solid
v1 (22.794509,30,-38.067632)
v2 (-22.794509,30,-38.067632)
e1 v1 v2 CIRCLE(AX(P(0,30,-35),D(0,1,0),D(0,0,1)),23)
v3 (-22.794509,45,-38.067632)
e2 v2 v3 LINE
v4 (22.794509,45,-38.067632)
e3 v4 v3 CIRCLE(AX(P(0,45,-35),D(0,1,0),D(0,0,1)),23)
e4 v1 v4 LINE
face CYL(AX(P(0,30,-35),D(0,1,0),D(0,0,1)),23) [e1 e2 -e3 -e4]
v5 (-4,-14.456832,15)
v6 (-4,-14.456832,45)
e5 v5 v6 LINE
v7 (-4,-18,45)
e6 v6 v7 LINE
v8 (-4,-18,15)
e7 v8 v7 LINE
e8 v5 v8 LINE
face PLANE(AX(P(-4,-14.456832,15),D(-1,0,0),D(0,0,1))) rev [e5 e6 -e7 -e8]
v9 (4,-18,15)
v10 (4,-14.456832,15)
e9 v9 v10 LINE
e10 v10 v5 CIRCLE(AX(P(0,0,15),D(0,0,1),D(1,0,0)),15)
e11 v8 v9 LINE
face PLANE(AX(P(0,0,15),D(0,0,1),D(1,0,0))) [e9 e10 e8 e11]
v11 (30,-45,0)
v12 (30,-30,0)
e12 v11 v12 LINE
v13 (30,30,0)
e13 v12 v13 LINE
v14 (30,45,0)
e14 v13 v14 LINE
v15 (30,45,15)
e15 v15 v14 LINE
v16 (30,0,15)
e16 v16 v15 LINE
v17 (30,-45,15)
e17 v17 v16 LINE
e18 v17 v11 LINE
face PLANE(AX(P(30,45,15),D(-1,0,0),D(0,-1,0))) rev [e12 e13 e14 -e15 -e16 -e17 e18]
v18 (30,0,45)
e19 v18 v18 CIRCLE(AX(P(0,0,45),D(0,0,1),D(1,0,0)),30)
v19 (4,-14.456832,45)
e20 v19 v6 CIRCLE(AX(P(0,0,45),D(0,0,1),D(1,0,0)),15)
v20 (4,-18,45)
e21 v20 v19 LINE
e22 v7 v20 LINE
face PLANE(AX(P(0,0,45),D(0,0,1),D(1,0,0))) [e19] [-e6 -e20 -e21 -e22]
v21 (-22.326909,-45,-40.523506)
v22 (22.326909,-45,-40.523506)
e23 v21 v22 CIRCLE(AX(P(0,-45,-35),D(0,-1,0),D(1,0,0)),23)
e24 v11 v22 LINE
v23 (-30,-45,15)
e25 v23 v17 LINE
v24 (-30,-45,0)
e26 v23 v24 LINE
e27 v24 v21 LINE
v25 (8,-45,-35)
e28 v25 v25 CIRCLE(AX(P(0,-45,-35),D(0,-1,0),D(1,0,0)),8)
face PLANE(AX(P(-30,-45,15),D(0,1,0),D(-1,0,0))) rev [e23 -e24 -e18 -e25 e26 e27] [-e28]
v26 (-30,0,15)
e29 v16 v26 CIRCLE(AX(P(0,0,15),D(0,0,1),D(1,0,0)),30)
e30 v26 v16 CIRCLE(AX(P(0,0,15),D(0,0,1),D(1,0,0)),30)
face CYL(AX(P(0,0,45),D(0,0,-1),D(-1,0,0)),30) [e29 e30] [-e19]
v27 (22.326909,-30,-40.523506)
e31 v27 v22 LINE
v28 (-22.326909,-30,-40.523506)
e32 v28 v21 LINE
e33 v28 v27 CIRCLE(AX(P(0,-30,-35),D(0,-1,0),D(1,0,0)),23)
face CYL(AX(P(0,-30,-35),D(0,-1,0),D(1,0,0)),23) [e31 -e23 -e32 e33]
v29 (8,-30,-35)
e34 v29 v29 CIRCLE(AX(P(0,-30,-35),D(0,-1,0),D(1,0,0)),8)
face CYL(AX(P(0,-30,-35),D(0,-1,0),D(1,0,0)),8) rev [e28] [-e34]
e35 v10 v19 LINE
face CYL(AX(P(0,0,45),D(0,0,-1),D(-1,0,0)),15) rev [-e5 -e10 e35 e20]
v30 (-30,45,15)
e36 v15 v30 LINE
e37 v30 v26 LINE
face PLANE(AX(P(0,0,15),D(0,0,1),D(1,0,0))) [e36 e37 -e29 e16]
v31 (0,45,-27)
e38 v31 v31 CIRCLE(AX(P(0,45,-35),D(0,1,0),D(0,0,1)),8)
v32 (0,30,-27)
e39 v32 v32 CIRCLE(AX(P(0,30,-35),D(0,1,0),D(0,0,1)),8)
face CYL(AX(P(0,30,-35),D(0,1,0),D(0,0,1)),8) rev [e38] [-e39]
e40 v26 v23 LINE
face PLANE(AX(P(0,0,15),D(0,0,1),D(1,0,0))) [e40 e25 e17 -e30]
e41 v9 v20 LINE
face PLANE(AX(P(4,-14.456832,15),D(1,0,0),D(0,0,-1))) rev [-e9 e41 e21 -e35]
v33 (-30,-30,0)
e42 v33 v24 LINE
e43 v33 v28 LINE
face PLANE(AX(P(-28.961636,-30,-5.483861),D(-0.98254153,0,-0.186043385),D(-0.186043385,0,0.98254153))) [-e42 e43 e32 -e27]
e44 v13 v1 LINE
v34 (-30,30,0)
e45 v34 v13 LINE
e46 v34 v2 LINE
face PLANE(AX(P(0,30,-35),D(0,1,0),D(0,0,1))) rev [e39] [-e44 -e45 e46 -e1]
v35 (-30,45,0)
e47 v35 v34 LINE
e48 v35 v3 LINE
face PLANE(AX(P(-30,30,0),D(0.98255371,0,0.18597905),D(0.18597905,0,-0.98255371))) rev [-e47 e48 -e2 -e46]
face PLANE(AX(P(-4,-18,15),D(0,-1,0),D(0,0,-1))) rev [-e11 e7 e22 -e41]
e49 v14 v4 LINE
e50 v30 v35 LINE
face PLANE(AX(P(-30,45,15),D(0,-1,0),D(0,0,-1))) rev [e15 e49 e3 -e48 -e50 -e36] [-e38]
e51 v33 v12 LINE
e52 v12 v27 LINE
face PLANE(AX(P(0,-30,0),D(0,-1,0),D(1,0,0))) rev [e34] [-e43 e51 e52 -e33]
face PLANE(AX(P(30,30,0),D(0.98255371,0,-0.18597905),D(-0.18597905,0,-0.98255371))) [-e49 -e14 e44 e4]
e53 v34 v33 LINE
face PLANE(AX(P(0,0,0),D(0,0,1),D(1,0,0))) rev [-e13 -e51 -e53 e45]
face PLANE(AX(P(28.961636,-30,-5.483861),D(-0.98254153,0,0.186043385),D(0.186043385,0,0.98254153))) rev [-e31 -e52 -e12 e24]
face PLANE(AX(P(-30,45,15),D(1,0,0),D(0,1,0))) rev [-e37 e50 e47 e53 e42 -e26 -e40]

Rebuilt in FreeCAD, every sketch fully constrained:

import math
import FreeCAD as App
import Part
import Sketcher
Q = App.Units.Quantity


def add_polygon(sketch, points):
    """Adds a closed chain of lines whose ends are joined by coincident constraints."""
    first, n = sketch.GeometryCount, len(points)
    for a, b in zip(points, points[1:] + points[:1]):
        sketch.addGeometry(Part.LineSegment(App.Vector(*a, 0), App.Vector(*b, 0)), False)
    for i in range(n):
        sketch.addConstraint(Sketcher.Constraint("Coincident", first + i, 2, first + (i + 1) % n, 1))

doc = App.newDocument("Part")
body = doc.addObject("PartDesign::Body", "Body")

sketch1 = body.newObject("Sketcher::SketchObject", "Sketch")
sketch1.AttachmentSupport = (doc.getObject("XY_Plane"), [""])
sketch1.MapMode = "FlatFace"
add_polygon(sketch1, [(-30, 45), (-30, -45), (30, -45), (30, 45)])
sketch1.addConstraint(Sketcher.Constraint("Vertical", 0))
sketch1.addConstraint(Sketcher.Constraint("Horizontal", 1))
sketch1.addConstraint(Sketcher.Constraint("Vertical", 2))
sketch1.addConstraint(Sketcher.Constraint("Horizontal", 3))
sketch1.addConstraint(Sketcher.Constraint("Symmetric", 0, 2, 2, 2, -1, 1))
sketch1.addConstraint(Sketcher.Constraint("DistanceX", 1, 1, 1, 2, Q("60 mm")))
sketch1.addConstraint(Sketcher.Constraint("DistanceY", 0, 2, 0, 1, Q("90 mm")))
pad1 = body.newObject("PartDesign::Pad", "Pad")
pad1.Profile = sketch1
pad1.Length = 15

sketch2 = body.newObject("Sketcher::SketchObject", "Sketch001")
sketch2.AttachmentSupport = (doc.getObject("XY_Plane"), [""])
sketch2.MapMode = "FlatFace"
sketch2.AttachmentOffset = App.Placement(App.Vector(0, 0, 15), App.Rotation())
sketch2.addGeometry(Part.Circle(App.Vector(0, 0, 0), App.Vector(0, 0, 1), 30), False)
sketch2.addGeometry(Part.Circle(App.Vector(0, 0, 0), App.Vector(0, 0, 1), 15), False)
sketch2.addConstraint(Sketcher.Constraint("Coincident", 0, 3, -1, 1))
sketch2.addConstraint(Sketcher.Constraint("Coincident", 1, 3, -1, 1))
sketch2.addConstraint(Sketcher.Constraint("Diameter", 0, Q("60 mm")))
sketch2.addConstraint(Sketcher.Constraint("Diameter", 1, Q("30 mm")))
pad2 = body.newObject("PartDesign::Pad", "Pad001")
pad2.Profile = sketch2
pad2.Length = 30

sketch3 = body.newObject("Sketcher::SketchObject", "Sketch002")
sketch3.AttachmentSupport = (doc.getObject("XY_Plane"), [""])
sketch3.MapMode = "FlatFace"
sketch3.AttachmentOffset = App.Placement(App.Vector(0, 0, 15), App.Rotation())
sketch3.addGeometry(Part.LineSegment(App.Vector(-4, -18, 0), App.Vector(4, -18, 0)), False)
sketch3.addGeometry(Part.LineSegment(App.Vector(4, -18, 0), App.Vector(4, -14.5, 0)), False)
sketch3.addGeometry(Part.ArcOfCircle(Part.Circle(App.Vector(0, 0, 0), App.Vector(0, 0, 1), 15), math.radians(-75), math.radians(255)), False)
sketch3.addGeometry(Part.LineSegment(App.Vector(-4, -14.5, 0), App.Vector(-4, -18, 0)), False)
sketch3.addConstraint(Sketcher.Constraint("Coincident", 0, 2, 1, 1))
sketch3.addConstraint(Sketcher.Constraint("Coincident", 1, 2, 2, 1))
sketch3.addConstraint(Sketcher.Constraint("Coincident", 2, 2, 3, 1))
sketch3.addConstraint(Sketcher.Constraint("Coincident", 3, 2, 0, 1))
sketch3.addConstraint(Sketcher.Constraint("Horizontal", 0))
sketch3.addConstraint(Sketcher.Constraint("Vertical", 1))
sketch3.addConstraint(Sketcher.Constraint("Vertical", 3))
sketch3.addConstraint(Sketcher.Constraint("Coincident", 2, 3, -1, 1))
sketch3.addConstraint(Sketcher.Constraint("Horizontal", 1, 2, 2, 2))
sketch3.addConstraint(Sketcher.Constraint("Radius", 2, Q("15 mm")))
sketch3.addConstraint(Sketcher.Constraint("DistanceX", 0, 1, 0, 2, Q("8 mm")))
sketch3.addConstraint(Sketcher.Constraint("DistanceY", 0, 2, -1, 1, Q("18 mm")))
pocket1 = body.newObject("PartDesign::Pocket", "Pocket")
pocket1.Profile = sketch3
pocket1.Length = 30
pocket1.Reversed = True

sketch4 = body.newObject("Sketcher::SketchObject", "Sketch003")
sketch4.AttachmentSupport = (doc.getObject("XZ_Plane"), [""])
sketch4.MapMode = "FlatFace"
sketch4.AttachmentOffset = App.Placement(App.Vector(0, 0, -45), App.Rotation())
sketch4.addGeometry(Part.LineSegment(App.Vector(-23, -38, 0), App.Vector(-30, 0, 0)), False)
sketch4.addGeometry(Part.LineSegment(App.Vector(-30, 0, 0), App.Vector(30, 0, 0)), False)
sketch4.addGeometry(Part.LineSegment(App.Vector(30, 0, 0), App.Vector(23, -38, 0)), False)
sketch4.addGeometry(Part.ArcOfCircle(Part.Circle(App.Vector(0, -35, 0), App.Vector(0, 0, 1), 23), math.radians(-172), math.radians(-8)), False)
sketch4.addGeometry(Part.Circle(App.Vector(0, -35, 0), App.Vector(0, 0, 1), 8), False)
sketch4.addConstraint(Sketcher.Constraint("Coincident", 0, 2, 1, 1))
sketch4.addConstraint(Sketcher.Constraint("Coincident", 1, 2, 2, 1))
sketch4.addConstraint(Sketcher.Constraint("Coincident", 2, 2, 3, 2))
sketch4.addConstraint(Sketcher.Constraint("Coincident", 3, 1, 0, 1))
sketch4.addConstraint(Sketcher.Constraint("Horizontal", 1))
sketch4.addConstraint(Sketcher.Constraint("Coincident", 4, 3, 3, 3))
sketch4.addConstraint(Sketcher.Constraint("Symmetric", 0, 2, 1, 2, -1, 1))
sketch4.addConstraint(Sketcher.Constraint("Symmetric", 2, 2, 3, 1, -2))
sketch4.addConstraint(Sketcher.Constraint("Diameter", 4, Q("16 mm")))
sketch4.addConstraint(Sketcher.Constraint("Radius", 3, Q("23 mm")))
sketch4.addConstraint(Sketcher.Constraint("DistanceX", 1, 1, 1, 2, Q("60 mm")))
sketch4.addConstraint(Sketcher.Constraint("DistanceY", 3, 3, -1, 1, Q("35 mm")))
sketch4.addConstraint(Sketcher.Constraint("DistanceX", -1, 1, 2, 2, Q("22.794509 mm")))
pad3 = body.newObject("PartDesign::Pad", "Pad002")
pad3.Profile = sketch4
pad3.Length = 15

sketch5 = body.newObject("Sketcher::SketchObject", "Sketch004")
sketch5.AttachmentSupport = (doc.getObject("XZ_Plane"), [""])
sketch5.MapMode = "FlatFace"
sketch5.AttachmentOffset = App.Placement(App.Vector(0, 0, 30), App.Rotation())
sketch5.addGeometry(Part.LineSegment(App.Vector(30, 0, 0), App.Vector(-30, 0, 0)), False)
sketch5.addGeometry(Part.LineSegment(App.Vector(-30, 0, 0), App.Vector(-22.8, -38, 0)), False)
sketch5.addGeometry(Part.LineSegment(App.Vector(-22.8, -38, 0), App.Vector(-22.3, -40.5, 0)), False)
sketch5.addGeometry(Part.ArcOfCircle(Part.Circle(App.Vector(0, -35, 0), App.Vector(0, 0, 1), 23), math.radians(-166), math.radians(-14)), False)
sketch5.addGeometry(Part.LineSegment(App.Vector(22.3, -40.5, 0), App.Vector(22.8, -38, 0)), False)
sketch5.addGeometry(Part.LineSegment(App.Vector(22.8, -38, 0), App.Vector(30, 0, 0)), False)
sketch5.addGeometry(Part.Circle(App.Vector(0, -35, 0), App.Vector(0, 0, 1), 8), False)
sketch5.addConstraint(Sketcher.Constraint("Coincident", 0, 2, 1, 1))
sketch5.addConstraint(Sketcher.Constraint("Coincident", 1, 2, 2, 1))
sketch5.addConstraint(Sketcher.Constraint("Coincident", 2, 2, 3, 1))
sketch5.addConstraint(Sketcher.Constraint("Coincident", 3, 2, 4, 1))
sketch5.addConstraint(Sketcher.Constraint("Coincident", 4, 2, 5, 1))
sketch5.addConstraint(Sketcher.Constraint("Coincident", 5, 2, 0, 1))
sketch5.addConstraint(Sketcher.Constraint("Horizontal", 0))
sketch5.addConstraint(Sketcher.Constraint("Coincident", 6, 3, 3, 3))
sketch5.addConstraint(Sketcher.Constraint("Symmetric", 0, 2, 5, 2, -1, 1))
sketch5.addConstraint(Sketcher.Constraint("Symmetric", 2, 2, 3, 2, -2))
sketch5.addConstraint(Sketcher.Constraint("Symmetric", 1, 2, 4, 2, -2))
sketch5.addConstraint(Sketcher.Constraint("Parallel", 1, 2))
sketch5.addConstraint(Sketcher.Constraint("Diameter", 6, Q("16 mm")))
sketch5.addConstraint(Sketcher.Constraint("Radius", 3, Q("23 mm")))
sketch5.addConstraint(Sketcher.Constraint("DistanceX", 0, 2, 0, 1, Q("60 mm")))
sketch5.addConstraint(Sketcher.Constraint("DistanceY", 3, 3, -1, 1, Q("35 mm")))
sketch5.addConstraint(Sketcher.Constraint("Distance", 2, Q("2.546601 mm")))
sketch5.addConstraint(Sketcher.Constraint("DistanceX", 2, 2, -1, 1, Q("22.326909 mm")))
pad4 = body.newObject("PartDesign::Pad", "Pad003")
pad4.Profile = sketch5
pad4.Length = 15

doc.recompute()
